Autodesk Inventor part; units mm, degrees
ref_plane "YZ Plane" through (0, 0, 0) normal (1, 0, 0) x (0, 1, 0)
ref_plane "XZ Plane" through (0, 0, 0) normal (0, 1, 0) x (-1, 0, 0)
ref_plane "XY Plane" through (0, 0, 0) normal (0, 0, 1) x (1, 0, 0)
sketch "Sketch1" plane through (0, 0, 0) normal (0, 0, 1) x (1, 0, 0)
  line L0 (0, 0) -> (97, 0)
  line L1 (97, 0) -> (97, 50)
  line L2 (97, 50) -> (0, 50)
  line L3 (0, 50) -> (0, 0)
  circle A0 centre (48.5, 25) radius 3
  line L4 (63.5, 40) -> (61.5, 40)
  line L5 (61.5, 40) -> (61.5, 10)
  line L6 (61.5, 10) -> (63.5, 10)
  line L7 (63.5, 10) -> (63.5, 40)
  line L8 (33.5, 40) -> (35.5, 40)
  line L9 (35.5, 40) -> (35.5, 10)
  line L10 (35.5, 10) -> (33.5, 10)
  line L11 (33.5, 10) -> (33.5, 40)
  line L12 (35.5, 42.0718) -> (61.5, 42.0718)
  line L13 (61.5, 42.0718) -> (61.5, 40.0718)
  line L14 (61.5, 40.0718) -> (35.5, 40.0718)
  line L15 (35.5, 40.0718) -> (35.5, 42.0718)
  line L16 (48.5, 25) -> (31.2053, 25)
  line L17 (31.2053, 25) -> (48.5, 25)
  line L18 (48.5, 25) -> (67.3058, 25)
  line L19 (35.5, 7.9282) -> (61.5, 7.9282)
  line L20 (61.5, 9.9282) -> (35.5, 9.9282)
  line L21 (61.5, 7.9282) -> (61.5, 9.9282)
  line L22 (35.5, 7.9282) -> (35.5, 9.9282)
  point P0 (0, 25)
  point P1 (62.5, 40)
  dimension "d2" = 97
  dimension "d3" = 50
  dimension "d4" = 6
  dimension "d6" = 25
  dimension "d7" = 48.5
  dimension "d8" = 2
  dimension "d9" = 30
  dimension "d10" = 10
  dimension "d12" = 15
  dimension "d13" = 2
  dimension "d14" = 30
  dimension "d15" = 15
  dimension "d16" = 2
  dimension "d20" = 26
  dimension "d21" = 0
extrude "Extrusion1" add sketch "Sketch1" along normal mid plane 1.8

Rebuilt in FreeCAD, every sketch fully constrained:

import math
import FreeCAD as App
import Part
import Sketcher

V = App.Vector


def add_polygon(sketch, points):
    """Adds a closed chain of lines whose ends are joined by coincident constraints."""
    first, n = sketch.GeometryCount, len(points)
    for a, b in zip(points, points[1:] + points[:1]):
        sketch.addGeometry(Part.LineSegment(App.Vector(*a, 0), App.Vector(*b, 0)), False)
    for i in range(n):
        sketch.addConstraint(Sketcher.Constraint("Coincident", first + i, 2, first + (i + 1) % n, 1))

doc = App.newDocument("Part")
params = doc.addObject("Spreadsheet::Sheet", "Params")
for row, (alias, value) in enumerate([
    ("sketch1_radius", "3 mm"),
    ("sketch1_width", "97 mm"),
    ("sketch1_width2", "26 mm"),
    ("sketch1_width3", "2 mm"),
    ("sketch1_height", "50 mm"),
    ("pad1_length", "1.8 mm"),
], start=1):
    params.set(f"A{row}", alias)
    params.set(f"B{row}", "=" + value)
    params.setAlias(f"B{row}", alias)

body = doc.addObject("PartDesign::Body", "Body")

# Sketch on XY plane
sketch1 = doc.addObject("Sketcher::SketchObject", "Sketch")
body.addObject(sketch1)
sketch1.AttachmentSupport = (doc.XY_Plane, [""])
sketch1.MapMode = "FlatFace"
add_polygon(sketch1, [(0, 50), (0, 0), (97, 0), (97, 50)])  # lines 0-3
add_polygon(sketch1, [(61.5, 7.9), (35.5, 7.9), (35.5, 9.9), (61.5, 9.9)])  # lines 4-7
add_polygon(sketch1, [(35.5, 40), (35.5, 25), (35.5, 10), (33.5, 10), (33.5, 40)])  # lines 8-12
sketch1.addGeometry(Part.ArcOfCircle(Part.Circle(V(48.5, 25, 0), V(0, 0, 1), 3), math.radians(0), math.radians(180)), False)  # 13
sketch1.addGeometry(Part.ArcOfCircle(Part.Circle(V(48.5, 25, 0), V(0, 0, 1), 3), math.radians(180), math.radians(360)), False)  # 14
add_polygon(sketch1, [(61.5, 10), (61.5, 25), (61.5, 40), (63.5, 40), (63.5, 10)])  # lines 15-19
add_polygon(sketch1, [(35.5, 40.1), (35.5, 42.1), (61.5, 42.1), (61.5, 40.1)])  # lines 20-23
sketch1.addConstraint([
    Sketcher.Constraint("Tangent", 13, 1, 14, 2),
    Sketcher.Constraint("Coincident", 14, 1, 13, 2),
    Sketcher.Constraint("Vertical", 0),
    Sketcher.Constraint("Horizontal", 1),
    Sketcher.Constraint("Vertical", 2),
    Sketcher.Constraint("Horizontal", 3),
    Sketcher.Constraint("Horizontal", 4),
    Sketcher.Constraint("Vertical", 5),
    Sketcher.Constraint("Horizontal", 6),
    Sketcher.Constraint("Vertical", 7),
    Sketcher.Constraint("Vertical", 8),
    Sketcher.Constraint("Vertical", 9),
    Sketcher.Constraint("Horizontal", 10),
    Sketcher.Constraint("Vertical", 11),
    Sketcher.Constraint("Horizontal", 12),
    Sketcher.Constraint("Vertical", 15),
    Sketcher.Constraint("Vertical", 16),
    Sketcher.Constraint("Horizontal", 17),
    Sketcher.Constraint("Vertical", 18),
    Sketcher.Constraint("Horizontal", 19),
    Sketcher.Constraint("Vertical", 20),
    Sketcher.Constraint("Horizontal", 21),
    Sketcher.Constraint("Vertical", 22),
    Sketcher.Constraint("Horizontal", 23),
    Sketcher.Constraint("Coincident", 0, 2, -1, 1),
    Sketcher.Constraint("Horizontal", 14, 3, 8, 2),
    Sketcher.Constraint("Horizontal", 8, 2, 13, 1),
    Sketcher.Constraint("Horizontal", 13, 1, 14, 1),
    Sketcher.Constraint("Horizontal", 14, 1, 15, 2),
    Sketcher.Constraint("Horizontal", 12, 2, 16, 2),
    Sketcher.Constraint("Horizontal", 10, 2, 18, 2),
    Sketcher.Constraint("Vertical", 5, 2, 8, 2),
    Sketcher.Constraint("Vertical", 7, 2, 15, 2),
    Sketcher.Constraint("Vertical", 12, 2, 20, 2),
    Sketcher.Constraint("Vertical", 19, 2, 21, 2),
    Sketcher.Constraint("Equal", 12, 17),
    Sketcher.Constraint("Equal", 19, 5),
    Sketcher.Constraint("Equal", 8, 9),
    Sketcher.Constraint("Equal", 7, 20),
    Sketcher.Constraint("Radius", 13, 3.0),
    Sketcher.Constraint("DistanceX", 1, 1, 1, 2, 97.0),
    Sketcher.Constraint("DistanceX", 4, 2, 4, 1, 26.0),
    Sketcher.Constraint("DistanceX", 10, 2, 10, 1, 2.0),
    Sketcher.Constraint("DistanceY", 0, 2, 0, 1, 50.0),
    Sketcher.Constraint("DistanceY", 8, 2, 8, 1, 15.0),
    Sketcher.Constraint("DistanceY", -1, 1, 13, 3, 25.0),
    Sketcher.Constraint("DistanceX", 10, 2, 13, 3, 15.0),
    Sketcher.Constraint("DistanceX", -1, 1, 13, 3, 48.5),
    Sketcher.Constraint("DistanceY", -1, 1, 4, 2, 7.9282),
    Sketcher.Constraint("DistanceY", -1, 1, 20, 2, 42.0718),
])
sketch1.setExpression("Constraints[61]", "Params.sketch1_radius")
sketch1.setExpression("Constraints[62]", "Params.sketch1_width")
sketch1.setExpression("Constraints[63]", "Params.sketch1_width2")
sketch1.setExpression("Constraints[64]", "Params.sketch1_width3")
sketch1.setExpression("Constraints[65]", "Params.sketch1_height")
pad1 = doc.addObject("PartDesign::Pad", "Pad")
body.addObject(pad1)
pad1.Profile = sketch1
pad1.setExpression("Length", "Params.pad1_length")
pad1.Midplane = True

doc.recompute()
